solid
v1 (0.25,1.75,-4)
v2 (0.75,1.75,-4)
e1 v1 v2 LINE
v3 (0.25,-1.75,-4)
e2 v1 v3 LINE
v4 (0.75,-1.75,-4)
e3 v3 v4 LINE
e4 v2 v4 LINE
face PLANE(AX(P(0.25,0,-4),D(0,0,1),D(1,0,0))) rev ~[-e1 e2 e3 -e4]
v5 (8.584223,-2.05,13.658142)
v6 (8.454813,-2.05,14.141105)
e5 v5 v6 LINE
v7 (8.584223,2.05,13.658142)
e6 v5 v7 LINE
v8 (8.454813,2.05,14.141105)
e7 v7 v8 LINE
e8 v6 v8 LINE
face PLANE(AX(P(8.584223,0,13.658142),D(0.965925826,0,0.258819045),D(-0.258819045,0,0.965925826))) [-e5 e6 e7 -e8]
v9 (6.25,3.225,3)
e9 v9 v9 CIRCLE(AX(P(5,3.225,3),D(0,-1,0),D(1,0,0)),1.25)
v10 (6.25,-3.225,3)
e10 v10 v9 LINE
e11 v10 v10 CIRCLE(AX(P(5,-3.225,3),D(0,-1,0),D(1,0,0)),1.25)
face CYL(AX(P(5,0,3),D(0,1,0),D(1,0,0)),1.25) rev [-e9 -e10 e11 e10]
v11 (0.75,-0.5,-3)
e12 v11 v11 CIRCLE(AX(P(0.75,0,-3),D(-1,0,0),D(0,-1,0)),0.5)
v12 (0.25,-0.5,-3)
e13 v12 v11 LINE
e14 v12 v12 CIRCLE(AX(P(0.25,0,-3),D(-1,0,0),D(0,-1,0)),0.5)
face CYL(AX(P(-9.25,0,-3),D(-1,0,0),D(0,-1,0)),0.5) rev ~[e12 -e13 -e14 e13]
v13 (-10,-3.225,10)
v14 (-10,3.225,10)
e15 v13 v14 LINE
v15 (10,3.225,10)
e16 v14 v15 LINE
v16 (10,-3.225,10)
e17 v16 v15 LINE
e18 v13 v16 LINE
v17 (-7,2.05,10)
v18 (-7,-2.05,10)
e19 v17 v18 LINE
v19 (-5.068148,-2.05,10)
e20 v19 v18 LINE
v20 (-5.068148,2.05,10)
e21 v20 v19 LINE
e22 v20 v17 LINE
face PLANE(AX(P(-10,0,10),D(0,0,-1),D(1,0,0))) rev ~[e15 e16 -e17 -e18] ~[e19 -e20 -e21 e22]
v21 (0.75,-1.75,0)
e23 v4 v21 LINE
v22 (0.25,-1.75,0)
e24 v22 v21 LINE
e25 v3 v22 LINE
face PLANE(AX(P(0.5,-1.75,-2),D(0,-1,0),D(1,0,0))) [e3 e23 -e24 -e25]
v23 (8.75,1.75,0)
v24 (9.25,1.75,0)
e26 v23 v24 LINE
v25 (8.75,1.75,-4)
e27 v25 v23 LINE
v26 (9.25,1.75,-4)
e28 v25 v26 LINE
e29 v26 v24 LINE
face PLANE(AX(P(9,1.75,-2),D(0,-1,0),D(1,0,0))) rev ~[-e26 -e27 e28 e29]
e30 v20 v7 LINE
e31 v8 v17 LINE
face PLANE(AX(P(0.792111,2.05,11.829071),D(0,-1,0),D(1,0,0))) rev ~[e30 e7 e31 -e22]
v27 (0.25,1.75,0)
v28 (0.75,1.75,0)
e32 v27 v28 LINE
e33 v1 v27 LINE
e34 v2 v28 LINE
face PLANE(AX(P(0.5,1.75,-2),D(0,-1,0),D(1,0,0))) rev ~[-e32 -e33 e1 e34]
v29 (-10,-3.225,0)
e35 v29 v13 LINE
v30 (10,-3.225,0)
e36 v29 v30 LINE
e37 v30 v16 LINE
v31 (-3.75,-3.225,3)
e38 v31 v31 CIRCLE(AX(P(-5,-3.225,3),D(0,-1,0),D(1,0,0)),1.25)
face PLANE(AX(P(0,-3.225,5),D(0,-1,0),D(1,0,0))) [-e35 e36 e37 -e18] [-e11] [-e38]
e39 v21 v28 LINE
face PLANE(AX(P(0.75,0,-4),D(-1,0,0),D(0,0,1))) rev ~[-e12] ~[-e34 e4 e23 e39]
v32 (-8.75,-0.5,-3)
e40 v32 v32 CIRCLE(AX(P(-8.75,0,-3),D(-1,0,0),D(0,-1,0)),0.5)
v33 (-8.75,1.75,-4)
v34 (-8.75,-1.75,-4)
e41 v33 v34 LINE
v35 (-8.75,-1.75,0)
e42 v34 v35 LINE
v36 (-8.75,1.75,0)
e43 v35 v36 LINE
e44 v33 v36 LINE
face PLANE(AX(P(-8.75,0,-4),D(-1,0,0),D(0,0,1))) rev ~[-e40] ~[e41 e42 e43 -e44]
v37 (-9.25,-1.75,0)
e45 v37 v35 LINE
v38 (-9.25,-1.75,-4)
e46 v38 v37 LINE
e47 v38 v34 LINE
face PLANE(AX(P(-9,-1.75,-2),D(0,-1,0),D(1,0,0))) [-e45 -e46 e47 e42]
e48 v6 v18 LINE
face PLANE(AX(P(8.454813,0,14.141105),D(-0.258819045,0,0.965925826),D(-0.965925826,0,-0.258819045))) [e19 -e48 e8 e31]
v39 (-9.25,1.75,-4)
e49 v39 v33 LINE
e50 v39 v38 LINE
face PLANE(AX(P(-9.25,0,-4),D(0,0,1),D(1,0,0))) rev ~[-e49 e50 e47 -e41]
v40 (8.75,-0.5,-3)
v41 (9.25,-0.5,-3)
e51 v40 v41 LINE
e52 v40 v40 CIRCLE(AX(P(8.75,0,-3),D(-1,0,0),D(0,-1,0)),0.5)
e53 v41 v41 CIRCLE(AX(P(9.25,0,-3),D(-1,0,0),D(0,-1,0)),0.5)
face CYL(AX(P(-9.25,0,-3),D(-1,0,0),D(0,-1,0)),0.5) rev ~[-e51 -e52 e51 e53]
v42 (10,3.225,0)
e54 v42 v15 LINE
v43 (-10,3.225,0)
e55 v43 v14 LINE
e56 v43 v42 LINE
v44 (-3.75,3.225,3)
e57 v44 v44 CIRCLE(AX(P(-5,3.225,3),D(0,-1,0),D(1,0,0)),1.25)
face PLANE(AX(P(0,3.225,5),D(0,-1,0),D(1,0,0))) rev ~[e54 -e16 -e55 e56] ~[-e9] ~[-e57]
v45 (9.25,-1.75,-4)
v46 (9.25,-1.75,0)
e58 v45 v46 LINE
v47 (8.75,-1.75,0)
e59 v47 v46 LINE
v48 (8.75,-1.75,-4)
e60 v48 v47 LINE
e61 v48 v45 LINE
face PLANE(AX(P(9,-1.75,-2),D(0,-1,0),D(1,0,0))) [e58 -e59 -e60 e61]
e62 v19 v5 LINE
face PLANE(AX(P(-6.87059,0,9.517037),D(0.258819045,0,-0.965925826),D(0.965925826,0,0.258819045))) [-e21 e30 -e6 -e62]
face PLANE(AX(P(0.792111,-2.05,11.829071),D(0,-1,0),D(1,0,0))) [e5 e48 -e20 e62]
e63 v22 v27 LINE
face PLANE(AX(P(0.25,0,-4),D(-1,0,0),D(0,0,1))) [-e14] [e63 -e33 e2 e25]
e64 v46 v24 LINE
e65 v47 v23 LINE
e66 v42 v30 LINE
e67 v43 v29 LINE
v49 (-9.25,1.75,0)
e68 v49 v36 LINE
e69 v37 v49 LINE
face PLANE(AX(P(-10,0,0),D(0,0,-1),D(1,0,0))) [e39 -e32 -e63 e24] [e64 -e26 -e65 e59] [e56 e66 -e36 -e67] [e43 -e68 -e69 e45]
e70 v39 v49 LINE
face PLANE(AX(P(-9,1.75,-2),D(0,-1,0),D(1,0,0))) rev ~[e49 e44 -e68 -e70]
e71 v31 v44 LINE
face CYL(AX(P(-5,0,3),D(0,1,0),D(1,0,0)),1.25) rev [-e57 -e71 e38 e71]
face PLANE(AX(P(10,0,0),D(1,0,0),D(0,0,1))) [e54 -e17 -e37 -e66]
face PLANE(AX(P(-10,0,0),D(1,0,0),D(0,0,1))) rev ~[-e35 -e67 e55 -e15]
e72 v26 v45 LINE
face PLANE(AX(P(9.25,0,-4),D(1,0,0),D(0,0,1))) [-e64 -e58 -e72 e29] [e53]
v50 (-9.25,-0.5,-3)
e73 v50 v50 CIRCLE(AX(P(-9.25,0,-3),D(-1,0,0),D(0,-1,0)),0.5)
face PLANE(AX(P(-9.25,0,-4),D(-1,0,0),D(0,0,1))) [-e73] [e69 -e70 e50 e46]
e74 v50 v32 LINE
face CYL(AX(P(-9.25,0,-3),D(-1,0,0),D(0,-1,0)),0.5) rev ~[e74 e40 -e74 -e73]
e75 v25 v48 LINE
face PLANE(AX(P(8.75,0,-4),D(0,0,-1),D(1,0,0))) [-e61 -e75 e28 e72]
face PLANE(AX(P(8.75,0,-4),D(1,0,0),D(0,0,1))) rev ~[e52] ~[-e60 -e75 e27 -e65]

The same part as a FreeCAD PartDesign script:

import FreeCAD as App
import Part
import Sketcher
from FreeCAD import Vector
Q = App.Units.Quantity


def add_polygon(sketch, points):
    """Adds a closed chain of lines whose ends are joined by coincident constraints."""
    first, n = sketch.GeometryCount, len(points)
    for a, b in zip(points, points[1:] + points[:1]):
        sketch.addGeometry(Part.LineSegment(App.Vector(*a, 0), App.Vector(*b, 0)), False)
    for i in range(n):
        sketch.addConstraint(Sketcher.Constraint("Coincident", first + i, 2, first + (i + 1) % n, 1))

doc = App.newDocument("Part")
params = doc.addObject("Spreadsheet::Sheet", "Params")
for row, (alias, value) in enumerate([
    ("sketch1_diameter", "2.5 mm"),
    ("sketch1_width", "20 mm"),
    ("sketch1_height", "10 mm"),
    ("pad1_length", "6.45 mm"),
    ("sketch2_length", "16 mm"),
    ("sketch2_length2", "0.5 mm"),
    ("pad2_length", "4.1 mm"),
    ("sketch3_height", "4 mm"),
    ("sketch3_width", "0.5 mm"),
    ("pad3_length", "3.5 mm"),
    ("sketch4_diameter", "1 mm"),
], start=1):
    params.set(f"A{row}", alias)
    params.set(f"B{row}", "=" + value)
    params.setAlias(f"B{row}", alias)

body = doc.addObject("PartDesign::Body", "Body")

# Sketch on XZ plane
sketch1 = doc.addObject("Sketcher::SketchObject", "Sketch")
body.addObject(sketch1)
sketch1.AttachmentSupport = (doc.XZ_Plane, [""])
sketch1.MapMode = "FlatFace"
add_polygon(sketch1, [(-10, 10), (-10, 0), (10, 0), (10, 10)])  # lines 0-3
sketch1.addGeometry(Part.Circle(Vector(-5, 3, 0), Vector(0, 0, 1), 1.2), False)  # 4
sketch1.addGeometry(Part.Circle(Vector(5, 3, 0), Vector(0, 0, 1), 1.2), False)  # 5
sketch1.addConstraint([
    Sketcher.Constraint("Vertical", 0),
    Sketcher.Constraint("Horizontal", 1),
    Sketcher.Constraint("Vertical", 2),
    Sketcher.Constraint("Horizontal", 3),
    Sketcher.Constraint("Equal", 4, 5),
    Sketcher.Constraint("Symmetric", 0, 2, 1, 2, -1, 1),
    Sketcher.Constraint("Symmetric", 4, 3, 5, 3, -2),
    Sketcher.Constraint("Diameter", 4, 2.5),
    Sketcher.Constraint("DistanceX", 1, 1, 1, 2, 20.0),
    Sketcher.Constraint("DistanceY", 0, 2, 0, 1, 10.0),
    Sketcher.Constraint("DistanceX", 4, 3, -1, 1, 5.0),
    Sketcher.Constraint("DistanceY", -1, 1, 4, 3, 3.0),
])
sketch1.setExpression("Constraints[11]", "Params.sketch1_diameter")
sketch1.setExpression("Constraints[12]", "Params.sketch1_width")
sketch1.setExpression("Constraints[13]", "Params.sketch1_height")
pad1 = doc.addObject("PartDesign::Pad", "Pad")
body.addObject(pad1)
pad1.Profile = sketch1
pad1.setExpression("Length", "Params.pad1_length")
pad1.Midplane = True

# Sketch on XZ plane
sketch2 = doc.addObject("Sketcher::SketchObject", "Sketch001")
body.addObject(sketch2)
sketch2.AttachmentSupport = (doc.XZ_Plane, [""])
sketch2.MapMode = "FlatFace"
add_polygon(sketch2, [(8.45, 14.14), (-7, 10), (-6.87, 9.52), (8.58, 13.66)])  # lines 0-3
sketch2.addConstraint([
    Sketcher.Constraint("Perpendicular", 0, 1),
    Sketcher.Constraint("Perpendicular", 1, 2),
    Sketcher.Constraint("Perpendicular", 2, 3),
    Sketcher.Constraint("Angle", 0, Q("-165 deg")),
    Sketcher.Constraint("Distance", 0, 16.0),
    Sketcher.Constraint("DistanceX", 0, 2, -1, 1, 7.0),
    Sketcher.Constraint("DistanceY", -1, 1, 0, 2, 10.0),
    Sketcher.Constraint("Distance", 1, 0.5),
])
sketch2.setExpression("Constraints[8]", "Params.sketch2_length")
sketch2.setExpression("Constraints[11]", "Params.sketch2_length2")
pad2 = doc.addObject("PartDesign::Pad", "Pad001")
body.addObject(pad2)
pad2.Profile = sketch2
pad2.setExpression("Length", "Params.pad2_length")
pad2.Midplane = True

# Sketch on XZ plane
sketch3 = doc.addObject("Sketcher::SketchObject", "Sketch002")
body.addObject(sketch3)
sketch3.AttachmentSupport = (doc.XZ_Plane, [""])
sketch3.MapMode = "FlatFace"
add_polygon(sketch3, [(-9.2, 0), (-9.2, -4), (-8.8, -4), (-8.8, 0)])  # lines 0-3
add_polygon(sketch3, [(0.2, 0), (0.2, -4), (0.8, -4), (0.8, 0)])  # lines 4-7
add_polygon(sketch3, [(8.8, 0), (8.8, -4), (9.2, -4), (9.2, 0)])  # lines 8-11
sketch3.addConstraint([
    Sketcher.Constraint("Vertical", 0),
    Sketcher.Constraint("Horizontal", 1),
    Sketcher.Constraint("Vertical", 2),
    Sketcher.Constraint("Horizontal", 3),
    Sketcher.Constraint("Vertical", 4),
    Sketcher.Constraint("Horizontal", 5),
    Sketcher.Constraint("Vertical", 6),
    Sketcher.Constraint("Horizontal", 7),
    Sketcher.Constraint("Vertical", 8),
    Sketcher.Constraint("Horizontal", 9),
    Sketcher.Constraint("Vertical", 10),
    Sketcher.Constraint("Horizontal", 11),
    Sketcher.Constraint("Symmetric", 3, 2, 10, 2, -1, 1),
    Sketcher.Constraint("Symmetric", 1, 2, 8, 2, -2),
    Sketcher.Constraint("PointOnObject", 2, 2, -1),
    Sketcher.Constraint("PointOnObject", 6, 2, -1),
    Sketcher.Constraint("Horizontal", 1, 2, 4, 2),
    Sketcher.Constraint("Equal", 3, 5),
    Sketcher.Constraint("DistanceY", 0, 2, 0, 1, 4.0),
    Sketcher.Constraint("DistanceX", 1, 1, 1, 2, 0.5),
    Sketcher.Constraint("DistanceX", 1, 2, 4, 2, 9.0),
    Sketcher.Constraint("DistanceX", 5, 2, 8, 2, 8.0),
])
sketch3.setExpression("Constraints[30]", "Params.sketch3_height")
sketch3.setExpression("Constraints[31]", "Params.sketch3_width")
pad3 = doc.addObject("PartDesign::Pad", "Pad002")
body.addObject(pad3)
pad3.Profile = sketch3
pad3.setExpression("Length", "Params.pad3_length")
pad3.Midplane = True

# Sketch on YZ plane
sketch4 = doc.addObject("Sketcher::SketchObject", "Sketch003")
body.addObject(sketch4)
sketch4.AttachmentSupport = (doc.YZ_Plane, [""])
sketch4.MapMode = "FlatFace"
sketch4.AttachmentOffset = App.Placement(Vector(0, 0, -9.25), App.Rotation())
sketch4.addGeometry(Part.Circle(Vector(0, -3, 0), Vector(0, 0, 1), 0.5), False)
sketch4.addConstraint([
    Sketcher.Constraint("PointOnObject", 0, 3, -2),
    Sketcher.Constraint("Diameter", 0, 1.0),
    Sketcher.Constraint("DistanceY", 0, 3, -1, 1, 3.0),
])
sketch4.setExpression("Constraints[1]", "Params.sketch4_diameter")
pocket1 = doc.addObject("PartDesign::Pocket", "Pocket")
body.addObject(pocket1)
pocket1.Profile = sketch4
pocket1.Type = "ThroughAll"
pocket1.Reversed = True

doc.recompute()
